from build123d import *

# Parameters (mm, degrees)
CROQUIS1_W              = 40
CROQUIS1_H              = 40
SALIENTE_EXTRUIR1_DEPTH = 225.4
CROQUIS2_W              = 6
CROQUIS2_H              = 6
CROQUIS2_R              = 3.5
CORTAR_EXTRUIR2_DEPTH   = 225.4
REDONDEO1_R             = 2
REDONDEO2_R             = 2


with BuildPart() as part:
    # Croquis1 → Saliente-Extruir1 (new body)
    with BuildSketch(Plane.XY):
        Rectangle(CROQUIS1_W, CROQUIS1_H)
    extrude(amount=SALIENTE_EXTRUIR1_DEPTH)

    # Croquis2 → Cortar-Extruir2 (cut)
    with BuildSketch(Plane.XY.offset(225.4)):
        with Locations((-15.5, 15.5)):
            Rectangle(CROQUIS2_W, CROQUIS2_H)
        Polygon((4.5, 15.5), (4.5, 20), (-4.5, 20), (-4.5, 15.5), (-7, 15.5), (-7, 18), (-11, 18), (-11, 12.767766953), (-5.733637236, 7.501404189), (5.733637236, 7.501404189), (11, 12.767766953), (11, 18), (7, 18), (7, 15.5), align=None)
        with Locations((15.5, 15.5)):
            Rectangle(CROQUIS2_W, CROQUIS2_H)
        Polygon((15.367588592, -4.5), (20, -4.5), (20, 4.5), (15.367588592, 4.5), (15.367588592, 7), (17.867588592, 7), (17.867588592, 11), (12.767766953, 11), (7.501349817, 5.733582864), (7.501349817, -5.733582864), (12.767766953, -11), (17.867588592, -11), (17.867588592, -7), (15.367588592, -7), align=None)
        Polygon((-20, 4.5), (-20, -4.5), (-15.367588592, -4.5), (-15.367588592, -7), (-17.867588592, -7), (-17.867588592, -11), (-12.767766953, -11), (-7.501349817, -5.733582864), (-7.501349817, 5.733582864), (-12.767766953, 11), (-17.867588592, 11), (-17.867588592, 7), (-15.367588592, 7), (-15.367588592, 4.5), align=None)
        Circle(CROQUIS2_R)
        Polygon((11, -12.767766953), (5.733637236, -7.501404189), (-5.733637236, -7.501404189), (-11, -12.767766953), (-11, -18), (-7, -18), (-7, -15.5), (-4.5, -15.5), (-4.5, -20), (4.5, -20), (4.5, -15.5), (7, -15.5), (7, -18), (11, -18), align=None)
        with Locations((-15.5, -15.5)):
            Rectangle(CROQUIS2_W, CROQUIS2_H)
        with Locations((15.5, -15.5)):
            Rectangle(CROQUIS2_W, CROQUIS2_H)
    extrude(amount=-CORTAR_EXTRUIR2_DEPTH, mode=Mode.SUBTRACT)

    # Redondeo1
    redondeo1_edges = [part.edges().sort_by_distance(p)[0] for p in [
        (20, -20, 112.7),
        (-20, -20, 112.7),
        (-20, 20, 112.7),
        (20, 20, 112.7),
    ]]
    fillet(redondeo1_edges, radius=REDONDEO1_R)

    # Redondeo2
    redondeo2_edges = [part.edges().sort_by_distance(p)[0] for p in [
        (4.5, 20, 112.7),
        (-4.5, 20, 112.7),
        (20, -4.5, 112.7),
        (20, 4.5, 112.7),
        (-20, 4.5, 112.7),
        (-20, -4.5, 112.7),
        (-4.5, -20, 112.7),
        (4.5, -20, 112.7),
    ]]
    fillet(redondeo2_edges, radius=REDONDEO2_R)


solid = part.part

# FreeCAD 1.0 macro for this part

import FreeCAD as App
import Part
import Sketcher
from FreeCAD import Vector


def edges_at(feature, points):
    """Names of the edges that pass closest to the given points."""
    edges = feature.Shape.Edges
    near = lambda p: min(range(len(edges)), key=lambda i: edges[i].distToShape(Part.Vertex(*p))[0])
    return sorted({f"Edge{near(p) + 1}" for p in points})

doc = App.newDocument("Part")
params = doc.addObject("Spreadsheet::Sheet", "Params")
for row, (alias, value) in enumerate([
    ("sketch1_width", "40 mm"),
    ("pad1_length", "225.4 mm"),
    ("sketch2_diameter", "7 mm"),
    ("sketch2_width", "6 mm"),
    ("sketch2_width2", "9 mm"),
    ("sketch2_width3", "4 mm"),
    ("sketch2_width4", "2.5 mm"),
    ("pocket1_length", "225.4 mm"),
    ("fillet_radius", "2 mm"),
    ("fillet2_radius", "2 mm"),
], start=1):
    params.set(f"A{row}", alias)
    params.set(f"B{row}", "=" + value)
    params.setAlias(f"B{row}", alias)

body = doc.addObject("PartDesign::Body", "Body")

# Sketch on XY plane
sketch1 = body.newObject("Sketcher::SketchObject", "Sketch")
sketch1.AttachmentSupport = (doc.getObject("XY_Plane"), [""])
sketch1.MapMode = "FlatFace"
sketch1.addGeometry([
    Part.LineSegment(Vector(-20, 20, 0), Vector(-20, -20, 0)),
    Part.LineSegment(Vector(-20, -20, 0), Vector(20, -20, 0)),
    Part.LineSegment(Vector(20, -20, 0), Vector(20, 20, 0)),
    Part.LineSegment(Vector(20, 20, 0), Vector(-20, 20, 0)),
], False)
sketch1.addConstraint([
    Sketcher.Constraint("Coincident", 0, 2, 1, 1),
    Sketcher.Constraint("Coincident", 1, 2, 2, 1),
    Sketcher.Constraint("Coincident", 2, 2, 3, 1),
    Sketcher.Constraint("Coincident", 3, 2, 0, 1),
    Sketcher.Constraint("Vertical", 0),
    Sketcher.Constraint("Horizontal", 1),
    Sketcher.Constraint("Vertical", 2),
    Sketcher.Constraint("Horizontal", 3),
    Sketcher.Constraint("Symmetric", 0, 2, 2, 2, -1, 1),
    Sketcher.Constraint("Equal", 3, 0),
    Sketcher.Constraint("DistanceX", 1, 1, 1, 2, 40.0),
])
sketch1.setExpression("Constraints[10]", "Params.sketch1_width")
pad1 = body.newObject("PartDesign::Pad", "Pad")
pad1.Profile = sketch1
pad1.setExpression("Length", "Params.pad1_length")

# Sketch on XY plane
sketch2 = body.newObject("Sketcher::SketchObject", "Sketch001")
sketch2.AttachmentSupport = (doc.getObject("XY_Plane"), [""])
sketch2.MapMode = "FlatFace"
sketch2.AttachmentOffset = App.Placement(Vector(0, 0, 225.4), App.Rotation())
sketch2.addGeometry([
    Part.LineSegment(Vector(-18.5, 18.5, 0), Vector(-18.5, 12.5, 0)),  # 0
    Part.LineSegment(Vector(-18.5, 12.5, 0), Vector(-12.5, 12.5, 0)),  # 1
    Part.LineSegment(Vector(-12.5, 12.5, 0), Vector(-12.5, 18.5, 0)),  # 2
    Part.LineSegment(Vector(-12.5, 18.5, 0), Vector(-18.5, 18.5, 0)),  # 3
    Part.LineSegment(Vector(4.5, 15.5, 0), Vector(4.5, 20, 0)),  # 4
    Part.LineSegment(Vector(4.5, 20, 0), Vector(-4.5, 20, 0)),  # 5
    Part.LineSegment(Vector(-4.5, 20, 0), Vector(-4.5, 15.5, 0)),  # 6
    Part.LineSegment(Vector(-4.5, 15.5, 0), Vector(-7, 15.5, 0)),  # 7
    Part.LineSegment(Vector(-7, 15.5, 0), Vector(-7, 18, 0)),  # 8
    Part.LineSegment(Vector(-7, 18, 0), Vector(-11, 18, 0)),  # 9
    Part.LineSegment(Vector(-11, 18, 0), Vector(-11, 12.8, 0)),  # 10
    Part.LineSegment(Vector(-11, 12.8, 0), Vector(-5.7, 7.5, 0)),  # 11
    Part.LineSegment(Vector(-5.7, 7.5, 0), Vector(5.7, 7.5, 0)),  # 12
    Part.LineSegment(Vector(5.7, 7.5, 0), Vector(11, 12.8, 0)),  # 13
    Part.LineSegment(Vector(11, 12.8, 0), Vector(11, 18, 0)),  # 14
    Part.LineSegment(Vector(11, 18, 0), Vector(7, 18, 0)),  # 15
    Part.LineSegment(Vector(7, 18, 0), Vector(7, 15.5, 0)),  # 16
    Part.LineSegment(Vector(7, 15.5, 0), Vector(4.5, 15.5, 0)),  # 17
    Part.LineSegment(Vector(12.5, 18.5, 0), Vector(12.5, 12.5, 0)),  # 18
    Part.LineSegment(Vector(12.5, 12.5, 0), Vector(18.5, 12.5, 0)),  # 19
    Part.LineSegment(Vector(18.5, 12.5, 0), Vector(18.5, 18.5, 0)),  # 20
    Part.LineSegment(Vector(18.5, 18.5, 0), Vector(12.5, 18.5, 0)),  # 21
    Part.LineSegment(Vector(15.4, -4.5, 0), Vector(20, -4.5, 0)),  # 22
    Part.LineSegment(Vector(20, -4.5, 0), Vector(20, 4.5, 0)),  # 23
    Part.LineSegment(Vector(20, 4.5, 0), Vector(15.4, 4.5, 0)),  # 24
    Part.LineSegment(Vector(15.4, 4.5, 0), Vector(15.4, 7, 0)),  # 25
    Part.LineSegment(Vector(15.4, 7, 0), Vector(17.9, 7, 0)),  # 26
    Part.LineSegment(Vector(17.9, 7, 0), Vector(17.9, 11, 0)),  # 27
    Part.LineSegment(Vector(17.9, 11, 0), Vector(12.8, 11, 0)),  # 28
    Part.LineSegment(Vector(12.8, 11, 0), Vector(7.5, 5.7, 0)),  # 29
    Part.LineSegment(Vector(7.5, 5.7, 0), Vector(7.5, -5.7, 0)),  # 30
    Part.LineSegment(Vector(7.5, -5.7, 0), Vector(12.8, -11, 0)),  # 31
    Part.LineSegment(Vector(12.8, -11, 0), Vector(17.9, -11, 0)),  # 32
    Part.LineSegment(Vector(17.9, -11, 0), Vector(17.9, -7, 0)),  # 33
    Part.LineSegment(Vector(17.9, -7, 0), Vector(15.4, -7, 0)),  # 34
    Part.LineSegment(Vector(15.4, -7, 0), Vector(15.4, -4.5, 0)),  # 35
    Part.LineSegment(Vector(-20, 4.5, 0), Vector(-20, -4.5, 0)),  # 36
    Part.LineSegment(Vector(-20, -4.5, 0), Vector(-15.4, -4.5, 0)),  # 37
    Part.LineSegment(Vector(-15.4, -4.5, 0), Vector(-15.4, -7, 0)),  # 38
    Part.LineSegment(Vector(-15.4, -7, 0), Vector(-17.9, -7, 0)),  # 39
    Part.LineSegment(Vector(-17.9, -7, 0), Vector(-17.9, -11, 0)),  # 40
    Part.LineSegment(Vector(-17.9, -11, 0), Vector(-12.8, -11, 0)),  # 41
    Part.LineSegment(Vector(-12.8, -11, 0), Vector(-7.5, -5.7, 0)),  # 42
    Part.LineSegment(Vector(-7.5, -5.7, 0), Vector(-7.5, 5.7, 0)),  # 43
    Part.LineSegment(Vector(-7.5, 5.7, 0), Vector(-12.8, 11, 0)),  # 44
    Part.LineSegment(Vector(-12.8, 11, 0), Vector(-17.9, 11, 0)),  # 45
    Part.LineSegment(Vector(-17.9, 11, 0), Vector(-17.9, 7, 0)),  # 46
    Part.LineSegment(Vector(-17.9, 7, 0), Vector(-15.4, 7, 0)),  # 47
    Part.LineSegment(Vector(-15.4, 7, 0), Vector(-15.4, 4.5, 0)),  # 48
    Part.LineSegment(Vector(-15.4, 4.5, 0), Vector(-20, 4.5, 0)),  # 49
    Part.Circle(Vector(0, 0, 0), Vector(0, 0, 1), 3.5),  # 50
    Part.LineSegment(Vector(11, -12.8, 0), Vector(5.7, -7.5, 0)),  # 51
    Part.LineSegment(Vector(5.7, -7.5, 0), Vector(-5.7, -7.5, 0)),  # 52
    Part.LineSegment(Vector(-5.7, -7.5, 0), Vector(-11, -12.8, 0)),  # 53
    Part.LineSegment(Vector(-11, -12.8, 0), Vector(-11, -18, 0)),  # 54
    Part.LineSegment(Vector(-11, -18, 0), Vector(-7, -18, 0)),  # 55
    Part.LineSegment(Vector(-7, -18, 0), Vector(-7, -15.5, 0)),  # 56
    Part.LineSegment(Vector(-7, -15.5, 0), Vector(-4.5, -15.5, 0)),  # 57
    Part.LineSegment(Vector(-4.5, -15.5, 0), Vector(-4.5, -20, 0)),  # 58
    Part.LineSegment(Vector(-4.5, -20, 0), Vector(4.5, -20, 0)),  # 59
    Part.LineSegment(Vector(4.5, -20, 0), Vector(4.5, -15.5, 0)),  # 60
    Part.LineSegment(Vector(4.5, -15.5, 0), Vector(7, -15.5, 0)),  # 61
    Part.LineSegment(Vector(7, -15.5, 0), Vector(7, -18, 0)),  # 62
    Part.LineSegment(Vector(7, -18, 0), Vector(11, -18, 0)),  # 63
    Part.LineSegment(Vector(11, -18, 0), Vector(11, -12.8, 0)),  # 64
    Part.LineSegment(Vector(-18.5, -12.5, 0), Vector(-18.5, -18.5, 0)),  # 65
    Part.LineSegment(Vector(-18.5, -18.5, 0), Vector(-12.5, -18.5, 0)),  # 66
    Part.LineSegment(Vector(-12.5, -18.5, 0), Vector(-12.5, -12.5, 0)),  # 67
    Part.LineSegment(Vector(-12.5, -12.5, 0), Vector(-18.5, -12.5, 0)),  # 68
    Part.LineSegment(Vector(12.5, -12.5, 0), Vector(12.5, -18.5, 0)),  # 69
    Part.LineSegment(Vector(12.5, -18.5, 0), Vector(18.5, -18.5, 0)),  # 70
    Part.LineSegment(Vector(18.5, -18.5, 0), Vector(18.5, -12.5, 0)),  # 71
    Part.LineSegment(Vector(18.5, -12.5, 0), Vector(12.5, -12.5, 0)),  # 72
], False)
sketch2.addConstraint([
    Sketcher.Constraint("Coincident", 0, 2, 1, 1),
    Sketcher.Constraint("Coincident", 1, 2, 2, 1),
    Sketcher.Constraint("Coincident", 2, 2, 3, 1),
    Sketcher.Constraint("Coincident", 3, 2, 0, 1),
    Sketcher.Constraint("Coincident", 4, 2, 5, 1),
    Sketcher.Constraint("Coincident", 5, 2, 6, 1),
    Sketcher.Constraint("Coincident", 6, 2, 7, 1),
    Sketcher.Constraint("Coincident", 7, 2, 8, 1),
    Sketcher.Constraint("Coincident", 8, 2, 9, 1),
    Sketcher.Constraint("Coincident", 9, 2, 10, 1),
    Sketcher.Constraint("Coincident", 10, 2, 11, 1),
    Sketcher.Constraint("Coincident", 11, 2, 12, 1),
    Sketcher.Constraint("Coincident", 12, 2, 13, 1),
    Sketcher.Constraint("Coincident", 13, 2, 14, 1),
    Sketcher.Constraint("Coincident", 14, 2, 15, 1),
    Sketcher.Constraint("Coincident", 15, 2, 16, 1),
    Sketcher.Constraint("Coincident", 16, 2, 17, 1),
    Sketcher.Constraint("Coincident", 17, 2, 4, 1),
    Sketcher.Constraint("Coincident", 18, 2, 19, 1),
    Sketcher.Constraint("Coincident", 19, 2, 20, 1),
    Sketcher.Constraint("Coincident", 20, 2, 21, 1),
    Sketcher.Constraint("Coincident", 21, 2, 18, 1),
    Sketcher.Constraint("Coincident", 22, 2, 23, 1),
    Sketcher.Constraint("Coincident", 23, 2, 24, 1),
    Sketcher.Constraint("Coincident", 24, 2, 25, 1),
    Sketcher.Constraint("Coincident", 25, 2, 26, 1),
    Sketcher.Constraint("Coincident", 26, 2, 27, 1),
    Sketcher.Constraint("Coincident", 27, 2, 28, 1),
    Sketcher.Constraint("Coincident", 28, 2, 29, 1),
    Sketcher.Constraint("Coincident", 29, 2, 30, 1),
    Sketcher.Constraint("Coincident", 30, 2, 31, 1),
    Sketcher.Constraint("Coincident", 31, 2, 32, 1),
    Sketcher.Constraint("Coincident", 32, 2, 33, 1),
    Sketcher.Constraint("Coincident", 33, 2, 34, 1),
    Sketcher.Constraint("Coincident", 34, 2, 35, 1),
    Sketcher.Constraint("Coincident", 35, 2, 22, 1),
    Sketcher.Constraint("Coincident", 36, 2, 37, 1),
    Sketcher.Constraint("Coincident", 37, 2, 38, 1),
    Sketcher.Constraint("Coincident", 38, 2, 39, 1),
    Sketcher.Constraint("Coincident", 39, 2, 40, 1),
    Sketcher.Constraint("Coincident", 40, 2, 41, 1),
    Sketcher.Constraint("Coincident", 41, 2, 42, 1),
    Sketcher.Constraint("Coincident", 42, 2, 43, 1),
    Sketcher.Constraint("Coincident", 43, 2, 44, 1),
    Sketcher.Constraint("Coincident", 44, 2, 45, 1),
    Sketcher.Constraint("Coincident", 45, 2, 46, 1),
    Sketcher.Constraint("Coincident", 46, 2, 47, 1),
    Sketcher.Constraint("Coincident", 47, 2, 48, 1),
    Sketcher.Constraint("Coincident", 48, 2, 49, 1),
    Sketcher.Constraint("Coincident", 49, 2, 36, 1),
    Sketcher.Constraint("Coincident", 51, 2, 52, 1),
    Sketcher.Constraint("Coincident", 52, 2, 53, 1),
    Sketcher.Constraint("Coincident", 53, 2, 54, 1),
    Sketcher.Constraint("Coincident", 54, 2, 55, 1),
    Sketcher.Constraint("Coincident", 55, 2, 56, 1),
    Sketcher.Constraint("Coincident", 56, 2, 57, 1),
    Sketcher.Constraint("Coincident", 57, 2, 58, 1),
    Sketcher.Constraint("Coincident", 58, 2, 59, 1),
    Sketcher.Constraint("Coincident", 59, 2, 60, 1),
    Sketcher.Constraint("Coincident", 60, 2, 61, 1),
    Sketcher.Constraint("Coincident", 61, 2, 62, 1),
    Sketcher.Constraint("Coincident", 62, 2, 63, 1),
    Sketcher.Constraint("Coincident", 63, 2, 64, 1),
    Sketcher.Constraint("Coincident", 64, 2, 51, 1),
    Sketcher.Constraint("Coincident", 65, 2, 66, 1),
    Sketcher.Constraint("Coincident", 66, 2, 67, 1),
    Sketcher.Constraint("Coincident", 67, 2, 68, 1),
    Sketcher.Constraint("Coincident", 68, 2, 65, 1),
    Sketcher.Constraint("Coincident", 69, 2, 70, 1),
    Sketcher.Constraint("Coincident", 70, 2, 71, 1),
    Sketcher.Constraint("Coincident", 71, 2, 72, 1),
    Sketcher.Constraint("Coincident", 72, 2, 69, 1),
    Sketcher.Constraint("Vertical", 0),
    Sketcher.Constraint("Horizontal", 1),
    Sketcher.Constraint("Vertical", 2),
    Sketcher.Constraint("Horizontal", 3),
    Sketcher.Constraint("Vertical", 4),
    Sketcher.Constraint("Horizontal", 5),
    Sketcher.Constraint("Vertical", 6),
    Sketcher.Constraint("Horizontal", 7),
    Sketcher.Constraint("Vertical", 8),
    Sketcher.Constraint("Horizontal", 9),
    Sketcher.Constraint("Vertical", 10),
    Sketcher.Constraint("Horizontal", 12),
    Sketcher.Constraint("Vertical", 14),
    Sketcher.Constraint("Horizontal", 15),
    Sketcher.Constraint("Vertical", 16),
    Sketcher.Constraint("Horizontal", 17),
    Sketcher.Constraint("Vertical", 18),
    Sketcher.Constraint("Horizontal", 19),
    Sketcher.Constraint("Vertical", 20),
    Sketcher.Constraint("Horizontal", 21),
    Sketcher.Constraint("Horizontal", 22),
    Sketcher.Constraint("Vertical", 23),
    Sketcher.Constraint("Horizontal", 24),
    Sketcher.Constraint("Vertical", 25),
    Sketcher.Constraint("Horizontal", 26),
    Sketcher.Constraint("Vertical", 27),
    Sketcher.Constraint("Horizontal", 28),
    Sketcher.Constraint("Vertical", 30),
    Sketcher.Constraint("Horizontal", 32),
    Sketcher.Constraint("Vertical", 33),
    Sketcher.Constraint("Horizontal", 34),
    Sketcher.Constraint("Vertical", 35),
    Sketcher.Constraint("Vertical", 36),
    Sketcher.Constraint("Horizontal", 37),
    Sketcher.Constraint("Vertical", 38),
    Sketcher.Constraint("Horizontal", 39),
    Sketcher.Constraint("Vertical", 40),
    Sketcher.Constraint("Horizontal", 41),
    Sketcher.Constraint("Vertical", 43),
    Sketcher.Constraint("Horizontal", 45),
    Sketcher.Constraint("Vertical", 46),
    Sketcher.Constraint("Horizontal", 47),
    Sketcher.Constraint("Vertical", 48),
    Sketcher.Constraint("Horizontal", 49),
    Sketcher.Constraint("Horizontal", 52),
    Sketcher.Constraint("Vertical", 54),
    Sketcher.Constraint("Horizontal", 55),
    Sketcher.Constraint("Vertical", 56),
    Sketcher.Constraint("Horizontal", 57),
    Sketcher.Constraint("Vertical", 58),
    Sketcher.Constraint("Horizontal", 59),
    Sketcher.Constraint("Vertical", 60),
    Sketcher.Constraint("Horizontal", 61),
    Sketcher.Constraint("Vertical", 62),
    Sketcher.Constraint("Horizontal", 63),
    Sketcher.Constraint("Vertical", 64),
    Sketcher.Constraint("Vertical", 65),
    Sketcher.Constraint("Horizontal", 66),
    Sketcher.Constraint("Vertical", 67),
    Sketcher.Constraint("Horizontal", 68),
    Sketcher.Constraint("Vertical", 69),
    Sketcher.Constraint("Horizontal", 70),
    Sketcher.Constraint("Vertical", 71),
    Sketcher.Constraint("Horizontal", 72),
    Sketcher.Constraint("Coincident", 50, 3, -1, 1),
    Sketcher.Constraint("Symmetric", 23, 2, 36, 2, -1, 1),
    Sketcher.Constraint("Symmetric", 25, 2, 38, 2, -1, 1),
    Sketcher.Constraint("Symmetric", 27, 2, 40, 2, -1, 1),
    Sketcher.Constraint("Symmetric", 29, 2, 42, 2, -1, 1),
    Sketcher.Constraint("Symmetric", 31, 2, 44, 2, -1, 1),
    Sketcher.Constraint("Symmetric", 33, 2, 46, 2, -1, 1),
    Sketcher.Constraint("Symmetric", 35, 2, 48, 2, -1, 1),
    Sketcher.Constraint("Symmetric", 11, 2, 51, 2, -1, 1),
    Sketcher.Constraint("Symmetric", 13, 2, 53, 2, -1, 1),
    Sketcher.Constraint("Symmetric", 15, 2, 55, 2, -1, 1),
    Sketcher.Constraint("Symmetric", 17, 2, 57, 2, -1, 1),
    Sketcher.Constraint("Symmetric", 5, 2, 59, 2, -1, 1),
    Sketcher.Constraint("Symmetric", 7, 2, 61, 2, -1, 1),
    Sketcher.Constraint("Symmetric", 9, 2, 63, 2, -1, 1),
    Sketcher.Constraint("Symmetric", 20, 2, 65, 2, -1, 1),
    Sketcher.Constraint("Symmetric", 18, 2, 67, 2, -1, 1),
    Sketcher.Constraint("Symmetric", 2, 2, 69, 2, -1, 1),
    Sketcher.Constraint("Symmetric", 0, 2, 71, 2, -1, 1),
    Sketcher.Constraint("Symmetric", 10, 2, 13, 2, -2),
    Sketcher.Constraint("Symmetric", 8, 2, 15, 2, -2),
    Sketcher.Constraint("Symmetric", 6, 2, 17, 2, -2),
    Sketcher.Constraint("Symmetric", 1, 2, 18, 2, -2),
    Sketcher.Constraint("Symmetric", 3, 2, 20, 2, -2),
    Sketcher.Constraint("Symmetric", 35, 2, 37, 2, -2),
    Sketcher.Constraint("Symmetric", 33, 2, 39, 2, -2),
    Sketcher.Constraint("Symmetric", 31, 2, 41, 2, -2),
    Sketcher.Constraint("Perpendicular", 11, 13),
    Sketcher.Constraint("Parallel", 13, 29),
    Sketcher.Constraint("Perpendicular", 29, 31),
    Sketcher.Constraint("Perpendicular", 31, 42),
    Sketcher.Constraint("Perpendicular", 42, 44),
    Sketcher.Constraint("Parallel", 44, 51),
    Sketcher.Constraint("Perpendicular", 51, 53),
    Sketcher.Constraint("Horizontal", 30, 2, 42, 2),
    Sketcher.Constraint("Equal", 17, 26),
    Sketcher.Constraint("Equal", 72, 0),
    Sketcher.Constraint("Equal", 61, 8),
    Sketcher.Constraint("Equal", 59, 23),
    Sketcher.Constraint("Equal", 16, 25),
    Sketcher.Constraint("Equal", 63, 27),
    Sketcher.Constraint("Diameter", 50, 7.0),
    Sketcher.Constraint("DistanceX", 1, 1, 1, 2, 6.0),
    Sketcher.Constraint("DistanceX", 5, 2, 5, 1, 9.0),
    Sketcher.Constraint("DistanceX", 9, 2, 9, 1, 4.0),
    Sketcher.Constraint("DistanceX", 7, 2, 7, 1, 2.5),
    Sketcher.Constraint("DistanceY", 4, 1, 4, 2, 4.5),
    Sketcher.Constraint("DistanceY", -1, 1, 4, 2, 20.0),
    Sketcher.Constraint("DistanceX", -1, 1, 22, 2, 20.0),
    Sketcher.Constraint("DistanceX", 0, 2, -1, 1, 18.5),
    Sketcher.Constraint("DistanceY", -1, 1, 0, 2, 12.5),
    Sketcher.Constraint("DistanceX", 22, 1, 22, 2, 4.632411),
    Sketcher.Constraint("DistanceX", 28, 2, 28, 1, 5.099822),
    Sketcher.Constraint("Distance", 11, 7.447762),
    Sketcher.Constraint("Distance", 29, 7.447839),
    Sketcher.Constraint("DistanceY", 10, 2, 10, 1, 5.232233),
])
sketch2.setExpression("Constraints[177]", "Params.sketch2_diameter")
sketch2.setExpression("Constraints[178]", "Params.sketch2_width")
sketch2.setExpression("Constraints[179]", "Params.sketch2_width2")
sketch2.setExpression("Constraints[180]", "Params.sketch2_width3")
sketch2.setExpression("Constraints[181]", "Params.sketch2_width4")
pocket1 = body.newObject("PartDesign::Pocket", "Pocket")
pocket1.Profile = sketch2
pocket1.setExpression("Length", "Params.pocket1_length")
doc.recompute()

fillet = body.newObject("PartDesign::Fillet", "Fillet")
fillet.Base = (pocket1, edges_at(pocket1, [
    (20, -20, 112.7),
    (-20, -20, 112.7),
    (-20, 20, 112.7),
    (20, 20, 112.7),
]))
fillet.setExpression("Radius", "Params.fillet_radius")
doc.recompute()

fillet2 = body.newObject("PartDesign::Fillet", "Fillet001")
fillet2.Base = (fillet, edges_at(fillet, [
    (4.5, 20, 112.7),
    (-4.5, 20, 112.7),
    (20, -4.5, 112.7),
    (20, 4.5, 112.7),
    (-20, 4.5, 112.7),
    (-20, -4.5, 112.7),
    (-4.5, -20, 112.7),
    (4.5, -20, 112.7),
]))
fillet2.setExpression("Radius", "Params.fillet2_radius")

doc.recompute()
